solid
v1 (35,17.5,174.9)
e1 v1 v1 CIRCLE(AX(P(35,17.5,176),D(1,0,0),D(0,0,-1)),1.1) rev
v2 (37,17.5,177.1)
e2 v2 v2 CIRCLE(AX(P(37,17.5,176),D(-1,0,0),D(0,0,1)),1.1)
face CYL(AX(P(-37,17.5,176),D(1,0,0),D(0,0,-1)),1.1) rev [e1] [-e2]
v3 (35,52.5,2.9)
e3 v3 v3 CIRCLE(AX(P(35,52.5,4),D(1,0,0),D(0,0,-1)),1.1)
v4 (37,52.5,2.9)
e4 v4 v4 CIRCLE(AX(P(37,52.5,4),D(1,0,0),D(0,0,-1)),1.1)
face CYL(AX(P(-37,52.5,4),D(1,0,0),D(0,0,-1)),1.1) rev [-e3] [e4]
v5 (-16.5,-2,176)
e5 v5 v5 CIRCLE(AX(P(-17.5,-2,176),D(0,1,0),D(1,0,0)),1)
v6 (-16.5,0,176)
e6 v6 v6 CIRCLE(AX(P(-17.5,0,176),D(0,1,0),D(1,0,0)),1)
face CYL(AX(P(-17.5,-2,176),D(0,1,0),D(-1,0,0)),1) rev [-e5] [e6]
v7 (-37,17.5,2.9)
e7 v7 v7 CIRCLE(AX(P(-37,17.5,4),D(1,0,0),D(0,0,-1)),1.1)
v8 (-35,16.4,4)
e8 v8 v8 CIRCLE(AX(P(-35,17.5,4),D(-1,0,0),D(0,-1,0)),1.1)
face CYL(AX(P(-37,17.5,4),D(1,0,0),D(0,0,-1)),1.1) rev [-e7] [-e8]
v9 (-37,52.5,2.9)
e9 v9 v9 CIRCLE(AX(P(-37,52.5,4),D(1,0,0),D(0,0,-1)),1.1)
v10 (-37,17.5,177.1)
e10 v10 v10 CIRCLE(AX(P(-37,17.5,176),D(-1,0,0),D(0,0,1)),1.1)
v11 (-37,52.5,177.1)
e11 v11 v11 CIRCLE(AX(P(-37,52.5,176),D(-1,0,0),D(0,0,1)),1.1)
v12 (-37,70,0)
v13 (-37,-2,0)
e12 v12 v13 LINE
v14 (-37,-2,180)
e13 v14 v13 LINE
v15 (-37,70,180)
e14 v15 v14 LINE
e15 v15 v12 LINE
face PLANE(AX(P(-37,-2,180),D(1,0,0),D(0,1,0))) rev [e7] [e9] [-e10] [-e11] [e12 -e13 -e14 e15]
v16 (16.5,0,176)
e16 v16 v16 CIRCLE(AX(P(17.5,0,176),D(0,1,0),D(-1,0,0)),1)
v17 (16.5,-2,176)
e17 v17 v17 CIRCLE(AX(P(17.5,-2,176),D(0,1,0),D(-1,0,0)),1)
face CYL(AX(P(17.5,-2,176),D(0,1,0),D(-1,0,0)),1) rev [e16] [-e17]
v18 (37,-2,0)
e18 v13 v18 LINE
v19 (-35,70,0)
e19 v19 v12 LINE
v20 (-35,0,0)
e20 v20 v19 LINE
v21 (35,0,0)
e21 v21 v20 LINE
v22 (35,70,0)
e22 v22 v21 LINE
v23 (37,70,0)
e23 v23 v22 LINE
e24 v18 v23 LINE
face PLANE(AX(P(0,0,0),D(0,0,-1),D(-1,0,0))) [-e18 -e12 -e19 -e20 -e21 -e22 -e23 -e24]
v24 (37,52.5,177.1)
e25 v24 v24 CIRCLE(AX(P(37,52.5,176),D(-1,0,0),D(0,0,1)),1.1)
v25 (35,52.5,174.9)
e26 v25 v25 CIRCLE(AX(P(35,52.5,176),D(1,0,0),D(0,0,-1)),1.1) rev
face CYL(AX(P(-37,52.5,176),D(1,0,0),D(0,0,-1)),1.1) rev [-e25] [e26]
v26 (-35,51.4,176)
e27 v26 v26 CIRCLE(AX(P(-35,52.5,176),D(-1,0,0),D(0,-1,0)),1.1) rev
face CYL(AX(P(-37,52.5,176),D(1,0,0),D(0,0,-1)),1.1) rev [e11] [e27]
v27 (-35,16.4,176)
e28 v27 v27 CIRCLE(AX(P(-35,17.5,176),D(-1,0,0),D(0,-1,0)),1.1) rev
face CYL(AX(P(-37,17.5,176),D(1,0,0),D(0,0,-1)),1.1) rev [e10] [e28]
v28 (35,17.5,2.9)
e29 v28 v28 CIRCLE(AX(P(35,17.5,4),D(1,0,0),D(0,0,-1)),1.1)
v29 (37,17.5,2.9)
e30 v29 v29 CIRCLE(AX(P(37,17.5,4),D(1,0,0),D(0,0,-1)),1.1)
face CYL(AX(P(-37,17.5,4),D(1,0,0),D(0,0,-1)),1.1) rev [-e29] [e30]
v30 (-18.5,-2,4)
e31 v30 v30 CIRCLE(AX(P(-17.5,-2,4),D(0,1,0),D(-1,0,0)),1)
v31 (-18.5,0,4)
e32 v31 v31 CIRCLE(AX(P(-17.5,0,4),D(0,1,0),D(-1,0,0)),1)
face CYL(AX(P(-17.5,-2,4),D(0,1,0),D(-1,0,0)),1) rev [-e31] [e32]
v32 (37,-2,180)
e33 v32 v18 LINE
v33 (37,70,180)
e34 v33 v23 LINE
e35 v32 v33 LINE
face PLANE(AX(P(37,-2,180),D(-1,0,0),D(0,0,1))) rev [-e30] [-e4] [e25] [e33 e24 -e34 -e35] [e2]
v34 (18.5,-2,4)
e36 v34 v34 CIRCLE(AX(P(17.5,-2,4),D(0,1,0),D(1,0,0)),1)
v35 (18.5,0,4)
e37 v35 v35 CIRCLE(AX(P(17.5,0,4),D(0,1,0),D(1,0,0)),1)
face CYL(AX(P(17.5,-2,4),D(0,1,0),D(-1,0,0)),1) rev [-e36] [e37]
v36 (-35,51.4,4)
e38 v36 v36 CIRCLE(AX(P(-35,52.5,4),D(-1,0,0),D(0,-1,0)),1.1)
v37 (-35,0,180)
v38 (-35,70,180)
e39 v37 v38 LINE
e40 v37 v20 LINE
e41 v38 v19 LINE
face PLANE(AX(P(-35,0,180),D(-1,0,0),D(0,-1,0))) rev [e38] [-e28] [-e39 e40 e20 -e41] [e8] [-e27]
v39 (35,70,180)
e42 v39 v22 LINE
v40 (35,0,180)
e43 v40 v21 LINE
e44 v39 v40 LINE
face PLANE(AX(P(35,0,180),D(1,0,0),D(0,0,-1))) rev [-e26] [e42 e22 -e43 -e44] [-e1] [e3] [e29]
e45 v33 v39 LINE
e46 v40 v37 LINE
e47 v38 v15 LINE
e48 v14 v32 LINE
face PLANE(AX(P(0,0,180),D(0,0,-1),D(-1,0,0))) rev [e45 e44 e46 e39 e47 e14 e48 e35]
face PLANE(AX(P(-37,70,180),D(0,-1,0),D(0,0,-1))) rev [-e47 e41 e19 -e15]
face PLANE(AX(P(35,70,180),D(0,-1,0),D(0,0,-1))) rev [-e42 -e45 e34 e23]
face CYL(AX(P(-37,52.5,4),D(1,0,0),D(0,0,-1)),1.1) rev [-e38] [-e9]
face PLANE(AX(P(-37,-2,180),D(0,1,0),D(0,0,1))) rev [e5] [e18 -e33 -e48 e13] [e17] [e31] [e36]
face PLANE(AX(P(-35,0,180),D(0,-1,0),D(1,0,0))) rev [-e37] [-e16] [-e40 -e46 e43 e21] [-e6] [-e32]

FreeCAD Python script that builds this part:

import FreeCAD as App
import Part
import Sketcher

doc = App.newDocument("Part")
body = doc.addObject("PartDesign::Body", "Body")

sketch1 = body.newObject("Sketcher::SketchObject", "Sketch")
sketch1.AttachmentSupport = (doc.getObject("XY_Plane"), [""])
sketch1.MapMode = "FlatFace"
sketch1.addGeometry(Part.LineSegment(App.Vector(35, 0, 0), App.Vector(-35, 0, 0)), False)
sketch1.addGeometry(Part.LineSegment(App.Vector(-35, 0, 0), App.Vector(-35, 70, 0)), False)
sketch1.addGeometry(Part.LineSegment(App.Vector(-35, 70, 0), App.Vector(-37, 70, 0)), False)
sketch1.addGeometry(Part.LineSegment(App.Vector(-37, 70, 0), App.Vector(-37, -2, 0)), False)
sketch1.addGeometry(Part.LineSegment(App.Vector(-37, -2, 0), App.Vector(37, -2, 0)), False)
sketch1.addGeometry(Part.LineSegment(App.Vector(37, -2, 0), App.Vector(37, 70, 0)), False)
sketch1.addGeometry(Part.LineSegment(App.Vector(37, 70, 0), App.Vector(35, 70, 0)), False)
sketch1.addGeometry(Part.LineSegment(App.Vector(35, 70, 0), App.Vector(35, 0, 0)), False)
sketch1.addConstraint(Sketcher.Constraint("Coincident", 0, 2, 1, 1))
sketch1.addConstraint(Sketcher.Constraint("Coincident", 1, 2, 2, 1))
sketch1.addConstraint(Sketcher.Constraint("Coincident", 2, 2, 3, 1))
sketch1.addConstraint(Sketcher.Constraint("Coincident", 3, 2, 4, 1))
sketch1.addConstraint(Sketcher.Constraint("Coincident", 4, 2, 5, 1))
sketch1.addConstraint(Sketcher.Constraint("Coincident", 5, 2, 6, 1))
sketch1.addConstraint(Sketcher.Constraint("Coincident", 6, 2, 7, 1))
sketch1.addConstraint(Sketcher.Constraint("Coincident", 7, 2, 0, 1))
sketch1.addConstraint(Sketcher.Constraint("Horizontal", 0))
sketch1.addConstraint(Sketcher.Constraint("Vertical", 1))
sketch1.addConstraint(Sketcher.Constraint("Horizontal", 2))
sketch1.addConstraint(Sketcher.Constraint("Vertical", 3))
sketch1.addConstraint(Sketcher.Constraint("Horizontal", 4))
sketch1.addConstraint(Sketcher.Constraint("Vertical", 5))
sketch1.addConstraint(Sketcher.Constraint("Horizontal", 6))
sketch1.addConstraint(Sketcher.Constraint("Vertical", 7))
sketch1.addConstraint(Sketcher.Constraint("Symmetric", 0, 2, 7, 2, -1, 1))
sketch1.addConstraint(Sketcher.Constraint("Symmetric", 2, 2, 5, 2, -2))
sketch1.addConstraint(Sketcher.Constraint("Equal", 0, 1))
sketch1.addConstraint(Sketcher.Constraint("DistanceX", 0, 2, 0, 1, 70.0))
sketch1.addConstraint(Sketcher.Constraint("DistanceX", 2, 2, 2, 1, 2.0))
sketch1.addConstraint(Sketcher.Constraint("DistanceY", 3, 2, 3, 1, 72.0))
pad1 = body.newObject("PartDesign::Pad", "Pad")
pad1.Profile = sketch1
pad1.Length = 180

sketch2 = body.newObject("Sketcher::SketchObject", "Sketch001")
sketch2.AttachmentSupport = (doc.getObject("YZ_Plane"), [""])
sketch2.MapMode = "FlatFace"
sketch2.AttachmentOffset = App.Placement(App.Vector(0, 0, 37), App.Rotation())
sketch2.addGeometry(Part.Circle(App.Vector(52.5, 4, 0), App.Vector(0, 0, 1), 1.1), False)
sketch2.addGeometry(Part.Circle(App.Vector(17.5, 4, 0), App.Vector(0, 0, 1), 1.1), False)
sketch2.addConstraint(Sketcher.Constraint("Equal", 0, 1))
sketch2.addConstraint(Sketcher.Constraint("Horizontal", 0, 3, 1, 3))
sketch2.addConstraint(Sketcher.Constraint("Diameter", 0, 2.2))
sketch2.addConstraint(Sketcher.Constraint("DistanceY", -1, 1, 0, 3, 4.0))
sketch2.addConstraint(Sketcher.Constraint("DistanceX", 1, 3, 0, 3, 35.0))
sketch2.addConstraint(Sketcher.Constraint("DistanceX", -1, 1, 0, 3, 52.5))
pocket1 = body.newObject("PartDesign::Pocket", "Pocket")
pocket1.Profile = sketch2
pocket1.Type = "ThroughAll"
doc.recompute()

datumplane = body.newObject("PartDesign::Plane", "DatumPlane")
datumplane.AttachmentSupport = (doc.getObject("XY_Plane"), [""])
datumplane.MapMode = "FlatFace"
datumplane.AttachmentOffset = App.Placement(App.Vector(0, 0, 90), App.Rotation())
mirrored = body.newObject("PartDesign::Mirrored", "Mirrored")
mirrored.Originals = [pocket1]
mirrored.MirrorPlane = (datumplane, [""])
body.Tip = mirrored

sketch3 = body.newObject("Sketcher::SketchObject", "Sketch002")
sketch3.AttachmentSupport = (doc.getObject("XZ_Plane"), [""])
sketch3.MapMode = "FlatFace"
sketch3.addGeometry(Part.Circle(App.Vector(-17.5, 4, 0), App.Vector(0, 0, 1), 1), False)
sketch3.addGeometry(Part.Circle(App.Vector(17.5, 4, 0), App.Vector(0, 0, 1), 1), False)
sketch3.addGeometry(Part.Circle(App.Vector(-17.5, 176, 0), App.Vector(0, 0, 1), 1), False)
sketch3.addGeometry(Part.Circle(App.Vector(17.5, 176, 0), App.Vector(0, 0, 1), 1), False)
sketch3.addConstraint(Sketcher.Constraint("Equal", 0, 1))
sketch3.addConstraint(Sketcher.Constraint("Equal", 1, 2))
sketch3.addConstraint(Sketcher.Constraint("Equal", 2, 3))
sketch3.addConstraint(Sketcher.Constraint("Symmetric", 0, 3, 1, 3, -2))
sketch3.addConstraint(Sketcher.Constraint("Symmetric", 2, 3, 3, 3, -2))
sketch3.addConstraint(Sketcher.Constraint("Vertical", 0, 3, 2, 3))
sketch3.addConstraint(Sketcher.Constraint("Diameter", 0, 2.0))
sketch3.addConstraint(Sketcher.Constraint("DistanceY", -1, 1, 0, 3, 4.0))
sketch3.addConstraint(Sketcher.Constraint("DistanceY", -1, 1, 2, 3, 176.0))
sketch3.addConstraint(Sketcher.Constraint("DistanceX", 0, 3, 1, 3, 35.0))
pocket2 = body.newObject("PartDesign::Pocket", "Pocket001")
pocket2.Profile = sketch3
pocket2.Type = "ThroughAll"
pocket2.Reversed = True

doc.recompute()
